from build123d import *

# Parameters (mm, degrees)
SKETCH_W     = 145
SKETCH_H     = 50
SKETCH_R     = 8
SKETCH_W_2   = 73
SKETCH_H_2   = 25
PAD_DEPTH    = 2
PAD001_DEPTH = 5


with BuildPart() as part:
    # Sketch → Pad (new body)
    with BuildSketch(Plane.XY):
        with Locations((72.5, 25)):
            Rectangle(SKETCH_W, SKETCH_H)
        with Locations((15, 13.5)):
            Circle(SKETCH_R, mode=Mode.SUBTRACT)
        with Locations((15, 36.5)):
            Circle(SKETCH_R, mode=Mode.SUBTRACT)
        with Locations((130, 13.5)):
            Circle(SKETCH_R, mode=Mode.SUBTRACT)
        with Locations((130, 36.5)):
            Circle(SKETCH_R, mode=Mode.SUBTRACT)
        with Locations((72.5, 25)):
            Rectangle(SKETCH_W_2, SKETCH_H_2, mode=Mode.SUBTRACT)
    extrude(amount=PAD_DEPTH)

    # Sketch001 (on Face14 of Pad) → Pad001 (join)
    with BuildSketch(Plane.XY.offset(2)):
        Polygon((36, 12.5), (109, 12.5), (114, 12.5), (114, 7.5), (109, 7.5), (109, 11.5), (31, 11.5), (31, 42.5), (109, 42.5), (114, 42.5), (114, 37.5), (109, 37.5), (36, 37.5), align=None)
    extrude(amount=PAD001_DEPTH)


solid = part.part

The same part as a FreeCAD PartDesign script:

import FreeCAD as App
import Part
import Sketcher

V = App.Vector


def add_polygon(sketch, points):
    """Adds a closed chain of lines whose ends are joined by coincident constraints."""
    first, n = sketch.GeometryCount, len(points)
    for a, b in zip(points, points[1:] + points[:1]):
        sketch.addGeometry(Part.LineSegment(App.Vector(*a, 0), App.Vector(*b, 0)), False)
    for i in range(n):
        sketch.addConstraint(Sketcher.Constraint("Coincident", first + i, 2, first + (i + 1) % n, 1))

doc = App.newDocument("Part")
body = doc.addObject("PartDesign::Body", "Body")

# Sketch on XY plane
sketch1 = doc.addObject("Sketcher::SketchObject", "Sketch")
body.addObject(sketch1)
sketch1.AttachmentSupport = (doc.XY_Plane, [""])
sketch1.MapMode = "FlatFace"
add_polygon(sketch1, [(0, 50), (0, 0), (145, 0), (145, 50)])  # lines 0-3
sketch1.addGeometry(Part.Circle(V(15, 14, 0), V(0, 0, 1), 8), False)  # 4
sketch1.addGeometry(Part.Circle(V(130, 14, 0), V(0, 0, 1), 8), False)  # 5
sketch1.addGeometry(Part.Circle(V(15, 36, 0), V(0, 0, 1), 8), False)  # 6
add_polygon(sketch1, [(109, 12), (36, 12), (36, 38), (109, 38)])  # lines 7-10
sketch1.addGeometry(Part.Circle(V(130, 36, 0), V(0, 0, 1), 8), False)  # 11
sketch1.addConstraint(Sketcher.Constraint("Vertical", 0))
sketch1.addConstraint(Sketcher.Constraint("Horizontal", 1))
sketch1.addConstraint(Sketcher.Constraint("Vertical", 2))
sketch1.addConstraint(Sketcher.Constraint("Horizontal", 3))
sketch1.addConstraint(Sketcher.Constraint("Horizontal", 7))
sketch1.addConstraint(Sketcher.Constraint("Vertical", 8))
sketch1.addConstraint(Sketcher.Constraint("Horizontal", 9))
sketch1.addConstraint(Sketcher.Constraint("Vertical", 10))
sketch1.addConstraint(Sketcher.Constraint("Coincident", 0, 2, -1, 1))
sketch1.addConstraint(Sketcher.Constraint("Equal", 4, 5))
sketch1.addConstraint(Sketcher.Constraint("Equal", 5, 6))
sketch1.addConstraint(Sketcher.Constraint("Equal", 6, 11))
sketch1.addConstraint(Sketcher.Constraint("Horizontal", 4, 3, 5, 3))
sketch1.addConstraint(Sketcher.Constraint("Horizontal", 6, 3, 11, 3))
sketch1.addConstraint(Sketcher.Constraint("Vertical", 4, 3, 6, 3))
sketch1.addConstraint(Sketcher.Constraint("Vertical", 5, 3, 11, 3))
sketch1.addConstraint(Sketcher.Constraint("Diameter", 4, 16.0))
sketch1.addConstraint(Sketcher.Constraint("DistanceX", 1, 1, 1, 2, 145.0))
sketch1.addConstraint(Sketcher.Constraint("DistanceX", 7, 2, 7, 1, 73.0))
sketch1.addConstraint(Sketcher.Constraint("DistanceY", 0, 2, 0, 1, 50.0))
sketch1.addConstraint(Sketcher.Constraint("DistanceY", 8, 1, 8, 2, 25.0))
sketch1.addConstraint(Sketcher.Constraint("DistanceX", -1, 1, 4, 3, 15.0))
sketch1.addConstraint(Sketcher.Constraint("DistanceX", -1, 1, 5, 3, 130.0))
sketch1.addConstraint(Sketcher.Constraint("DistanceX", -1, 1, 7, 2, 36.0))
sketch1.addConstraint(Sketcher.Constraint("DistanceY", 4, 3, 6, 3, 23.0))
sketch1.addConstraint(Sketcher.Constraint("DistanceY", 7, 2, 4, 3, 1.0))
sketch1.addConstraint(Sketcher.Constraint("DistanceY", -1, 1, 4, 3, 13.5))
pad1 = doc.addObject("PartDesign::Pad", "Pad")
body.addObject(pad1)
pad1.Profile = sketch1
pad1.Length = 2

# Sketch on XY plane
sketch2 = doc.addObject("Sketcher::SketchObject", "Sketch001")
body.addObject(sketch2)
sketch2.AttachmentSupport = (doc.XY_Plane, [""])
sketch2.MapMode = "FlatFace"
sketch2.AttachmentOffset = App.Placement(V(0, 0, 2), App.Rotation())
add_polygon(sketch2, [(114, 12.5), (36, 12.5), (36, 37.5), (114, 37.5), (114, 42.5), (31, 42.5), (31, 11.5), (109, 11.5), (109, 7.5), (114, 7.5)])  # lines 0-9
sketch2.addConstraint(Sketcher.Constraint("Horizontal", 0))
sketch2.addConstraint(Sketcher.Constraint("Vertical", 1))
sketch2.addConstraint(Sketcher.Constraint("Horizontal", 2))
sketch2.addConstraint(Sketcher.Constraint("Vertical", 3))
sketch2.addConstraint(Sketcher.Constraint("Horizontal", 4))
sketch2.addConstraint(Sketcher.Constraint("Vertical", 5))
sketch2.addConstraint(Sketcher.Constraint("Horizontal", 6))
sketch2.addConstraint(Sketcher.Constraint("Vertical", 7))
sketch2.addConstraint(Sketcher.Constraint("Horizontal", 8))
sketch2.addConstraint(Sketcher.Constraint("Vertical", 9))
sketch2.addConstraint(Sketcher.Constraint("Vertical", 3, 2, 8, 2))
sketch2.addConstraint(Sketcher.Constraint("Equal", 2, 6))
sketch2.addConstraint(Sketcher.Constraint("Equal", 8, 3))
sketch2.addConstraint(Sketcher.Constraint("Equal", 3, 9))
sketch2.addConstraint(Sketcher.Constraint("DistanceX", 0, 2, 0, 1, 78.0))
sketch2.addConstraint(Sketcher.Constraint("DistanceX", 4, 2, 4, 1, 83.0))
sketch2.addConstraint(Sketcher.Constraint("DistanceY", 1, 1, 1, 2, 25.0))
sketch2.addConstraint(Sketcher.Constraint("DistanceY", 5, 2, 5, 1, 31.0))
sketch2.addConstraint(Sketcher.Constraint("DistanceX", -1, 1, 0, 2, 36.0))
sketch2.addConstraint(Sketcher.Constraint("DistanceY", -1, 1, 0, 2, 12.5))
pad2 = doc.addObject("PartDesign::Pad", "Pad001")
body.addObject(pad2)
pad2.Profile = sketch2
pad2.Length = 5

doc.recompute()
